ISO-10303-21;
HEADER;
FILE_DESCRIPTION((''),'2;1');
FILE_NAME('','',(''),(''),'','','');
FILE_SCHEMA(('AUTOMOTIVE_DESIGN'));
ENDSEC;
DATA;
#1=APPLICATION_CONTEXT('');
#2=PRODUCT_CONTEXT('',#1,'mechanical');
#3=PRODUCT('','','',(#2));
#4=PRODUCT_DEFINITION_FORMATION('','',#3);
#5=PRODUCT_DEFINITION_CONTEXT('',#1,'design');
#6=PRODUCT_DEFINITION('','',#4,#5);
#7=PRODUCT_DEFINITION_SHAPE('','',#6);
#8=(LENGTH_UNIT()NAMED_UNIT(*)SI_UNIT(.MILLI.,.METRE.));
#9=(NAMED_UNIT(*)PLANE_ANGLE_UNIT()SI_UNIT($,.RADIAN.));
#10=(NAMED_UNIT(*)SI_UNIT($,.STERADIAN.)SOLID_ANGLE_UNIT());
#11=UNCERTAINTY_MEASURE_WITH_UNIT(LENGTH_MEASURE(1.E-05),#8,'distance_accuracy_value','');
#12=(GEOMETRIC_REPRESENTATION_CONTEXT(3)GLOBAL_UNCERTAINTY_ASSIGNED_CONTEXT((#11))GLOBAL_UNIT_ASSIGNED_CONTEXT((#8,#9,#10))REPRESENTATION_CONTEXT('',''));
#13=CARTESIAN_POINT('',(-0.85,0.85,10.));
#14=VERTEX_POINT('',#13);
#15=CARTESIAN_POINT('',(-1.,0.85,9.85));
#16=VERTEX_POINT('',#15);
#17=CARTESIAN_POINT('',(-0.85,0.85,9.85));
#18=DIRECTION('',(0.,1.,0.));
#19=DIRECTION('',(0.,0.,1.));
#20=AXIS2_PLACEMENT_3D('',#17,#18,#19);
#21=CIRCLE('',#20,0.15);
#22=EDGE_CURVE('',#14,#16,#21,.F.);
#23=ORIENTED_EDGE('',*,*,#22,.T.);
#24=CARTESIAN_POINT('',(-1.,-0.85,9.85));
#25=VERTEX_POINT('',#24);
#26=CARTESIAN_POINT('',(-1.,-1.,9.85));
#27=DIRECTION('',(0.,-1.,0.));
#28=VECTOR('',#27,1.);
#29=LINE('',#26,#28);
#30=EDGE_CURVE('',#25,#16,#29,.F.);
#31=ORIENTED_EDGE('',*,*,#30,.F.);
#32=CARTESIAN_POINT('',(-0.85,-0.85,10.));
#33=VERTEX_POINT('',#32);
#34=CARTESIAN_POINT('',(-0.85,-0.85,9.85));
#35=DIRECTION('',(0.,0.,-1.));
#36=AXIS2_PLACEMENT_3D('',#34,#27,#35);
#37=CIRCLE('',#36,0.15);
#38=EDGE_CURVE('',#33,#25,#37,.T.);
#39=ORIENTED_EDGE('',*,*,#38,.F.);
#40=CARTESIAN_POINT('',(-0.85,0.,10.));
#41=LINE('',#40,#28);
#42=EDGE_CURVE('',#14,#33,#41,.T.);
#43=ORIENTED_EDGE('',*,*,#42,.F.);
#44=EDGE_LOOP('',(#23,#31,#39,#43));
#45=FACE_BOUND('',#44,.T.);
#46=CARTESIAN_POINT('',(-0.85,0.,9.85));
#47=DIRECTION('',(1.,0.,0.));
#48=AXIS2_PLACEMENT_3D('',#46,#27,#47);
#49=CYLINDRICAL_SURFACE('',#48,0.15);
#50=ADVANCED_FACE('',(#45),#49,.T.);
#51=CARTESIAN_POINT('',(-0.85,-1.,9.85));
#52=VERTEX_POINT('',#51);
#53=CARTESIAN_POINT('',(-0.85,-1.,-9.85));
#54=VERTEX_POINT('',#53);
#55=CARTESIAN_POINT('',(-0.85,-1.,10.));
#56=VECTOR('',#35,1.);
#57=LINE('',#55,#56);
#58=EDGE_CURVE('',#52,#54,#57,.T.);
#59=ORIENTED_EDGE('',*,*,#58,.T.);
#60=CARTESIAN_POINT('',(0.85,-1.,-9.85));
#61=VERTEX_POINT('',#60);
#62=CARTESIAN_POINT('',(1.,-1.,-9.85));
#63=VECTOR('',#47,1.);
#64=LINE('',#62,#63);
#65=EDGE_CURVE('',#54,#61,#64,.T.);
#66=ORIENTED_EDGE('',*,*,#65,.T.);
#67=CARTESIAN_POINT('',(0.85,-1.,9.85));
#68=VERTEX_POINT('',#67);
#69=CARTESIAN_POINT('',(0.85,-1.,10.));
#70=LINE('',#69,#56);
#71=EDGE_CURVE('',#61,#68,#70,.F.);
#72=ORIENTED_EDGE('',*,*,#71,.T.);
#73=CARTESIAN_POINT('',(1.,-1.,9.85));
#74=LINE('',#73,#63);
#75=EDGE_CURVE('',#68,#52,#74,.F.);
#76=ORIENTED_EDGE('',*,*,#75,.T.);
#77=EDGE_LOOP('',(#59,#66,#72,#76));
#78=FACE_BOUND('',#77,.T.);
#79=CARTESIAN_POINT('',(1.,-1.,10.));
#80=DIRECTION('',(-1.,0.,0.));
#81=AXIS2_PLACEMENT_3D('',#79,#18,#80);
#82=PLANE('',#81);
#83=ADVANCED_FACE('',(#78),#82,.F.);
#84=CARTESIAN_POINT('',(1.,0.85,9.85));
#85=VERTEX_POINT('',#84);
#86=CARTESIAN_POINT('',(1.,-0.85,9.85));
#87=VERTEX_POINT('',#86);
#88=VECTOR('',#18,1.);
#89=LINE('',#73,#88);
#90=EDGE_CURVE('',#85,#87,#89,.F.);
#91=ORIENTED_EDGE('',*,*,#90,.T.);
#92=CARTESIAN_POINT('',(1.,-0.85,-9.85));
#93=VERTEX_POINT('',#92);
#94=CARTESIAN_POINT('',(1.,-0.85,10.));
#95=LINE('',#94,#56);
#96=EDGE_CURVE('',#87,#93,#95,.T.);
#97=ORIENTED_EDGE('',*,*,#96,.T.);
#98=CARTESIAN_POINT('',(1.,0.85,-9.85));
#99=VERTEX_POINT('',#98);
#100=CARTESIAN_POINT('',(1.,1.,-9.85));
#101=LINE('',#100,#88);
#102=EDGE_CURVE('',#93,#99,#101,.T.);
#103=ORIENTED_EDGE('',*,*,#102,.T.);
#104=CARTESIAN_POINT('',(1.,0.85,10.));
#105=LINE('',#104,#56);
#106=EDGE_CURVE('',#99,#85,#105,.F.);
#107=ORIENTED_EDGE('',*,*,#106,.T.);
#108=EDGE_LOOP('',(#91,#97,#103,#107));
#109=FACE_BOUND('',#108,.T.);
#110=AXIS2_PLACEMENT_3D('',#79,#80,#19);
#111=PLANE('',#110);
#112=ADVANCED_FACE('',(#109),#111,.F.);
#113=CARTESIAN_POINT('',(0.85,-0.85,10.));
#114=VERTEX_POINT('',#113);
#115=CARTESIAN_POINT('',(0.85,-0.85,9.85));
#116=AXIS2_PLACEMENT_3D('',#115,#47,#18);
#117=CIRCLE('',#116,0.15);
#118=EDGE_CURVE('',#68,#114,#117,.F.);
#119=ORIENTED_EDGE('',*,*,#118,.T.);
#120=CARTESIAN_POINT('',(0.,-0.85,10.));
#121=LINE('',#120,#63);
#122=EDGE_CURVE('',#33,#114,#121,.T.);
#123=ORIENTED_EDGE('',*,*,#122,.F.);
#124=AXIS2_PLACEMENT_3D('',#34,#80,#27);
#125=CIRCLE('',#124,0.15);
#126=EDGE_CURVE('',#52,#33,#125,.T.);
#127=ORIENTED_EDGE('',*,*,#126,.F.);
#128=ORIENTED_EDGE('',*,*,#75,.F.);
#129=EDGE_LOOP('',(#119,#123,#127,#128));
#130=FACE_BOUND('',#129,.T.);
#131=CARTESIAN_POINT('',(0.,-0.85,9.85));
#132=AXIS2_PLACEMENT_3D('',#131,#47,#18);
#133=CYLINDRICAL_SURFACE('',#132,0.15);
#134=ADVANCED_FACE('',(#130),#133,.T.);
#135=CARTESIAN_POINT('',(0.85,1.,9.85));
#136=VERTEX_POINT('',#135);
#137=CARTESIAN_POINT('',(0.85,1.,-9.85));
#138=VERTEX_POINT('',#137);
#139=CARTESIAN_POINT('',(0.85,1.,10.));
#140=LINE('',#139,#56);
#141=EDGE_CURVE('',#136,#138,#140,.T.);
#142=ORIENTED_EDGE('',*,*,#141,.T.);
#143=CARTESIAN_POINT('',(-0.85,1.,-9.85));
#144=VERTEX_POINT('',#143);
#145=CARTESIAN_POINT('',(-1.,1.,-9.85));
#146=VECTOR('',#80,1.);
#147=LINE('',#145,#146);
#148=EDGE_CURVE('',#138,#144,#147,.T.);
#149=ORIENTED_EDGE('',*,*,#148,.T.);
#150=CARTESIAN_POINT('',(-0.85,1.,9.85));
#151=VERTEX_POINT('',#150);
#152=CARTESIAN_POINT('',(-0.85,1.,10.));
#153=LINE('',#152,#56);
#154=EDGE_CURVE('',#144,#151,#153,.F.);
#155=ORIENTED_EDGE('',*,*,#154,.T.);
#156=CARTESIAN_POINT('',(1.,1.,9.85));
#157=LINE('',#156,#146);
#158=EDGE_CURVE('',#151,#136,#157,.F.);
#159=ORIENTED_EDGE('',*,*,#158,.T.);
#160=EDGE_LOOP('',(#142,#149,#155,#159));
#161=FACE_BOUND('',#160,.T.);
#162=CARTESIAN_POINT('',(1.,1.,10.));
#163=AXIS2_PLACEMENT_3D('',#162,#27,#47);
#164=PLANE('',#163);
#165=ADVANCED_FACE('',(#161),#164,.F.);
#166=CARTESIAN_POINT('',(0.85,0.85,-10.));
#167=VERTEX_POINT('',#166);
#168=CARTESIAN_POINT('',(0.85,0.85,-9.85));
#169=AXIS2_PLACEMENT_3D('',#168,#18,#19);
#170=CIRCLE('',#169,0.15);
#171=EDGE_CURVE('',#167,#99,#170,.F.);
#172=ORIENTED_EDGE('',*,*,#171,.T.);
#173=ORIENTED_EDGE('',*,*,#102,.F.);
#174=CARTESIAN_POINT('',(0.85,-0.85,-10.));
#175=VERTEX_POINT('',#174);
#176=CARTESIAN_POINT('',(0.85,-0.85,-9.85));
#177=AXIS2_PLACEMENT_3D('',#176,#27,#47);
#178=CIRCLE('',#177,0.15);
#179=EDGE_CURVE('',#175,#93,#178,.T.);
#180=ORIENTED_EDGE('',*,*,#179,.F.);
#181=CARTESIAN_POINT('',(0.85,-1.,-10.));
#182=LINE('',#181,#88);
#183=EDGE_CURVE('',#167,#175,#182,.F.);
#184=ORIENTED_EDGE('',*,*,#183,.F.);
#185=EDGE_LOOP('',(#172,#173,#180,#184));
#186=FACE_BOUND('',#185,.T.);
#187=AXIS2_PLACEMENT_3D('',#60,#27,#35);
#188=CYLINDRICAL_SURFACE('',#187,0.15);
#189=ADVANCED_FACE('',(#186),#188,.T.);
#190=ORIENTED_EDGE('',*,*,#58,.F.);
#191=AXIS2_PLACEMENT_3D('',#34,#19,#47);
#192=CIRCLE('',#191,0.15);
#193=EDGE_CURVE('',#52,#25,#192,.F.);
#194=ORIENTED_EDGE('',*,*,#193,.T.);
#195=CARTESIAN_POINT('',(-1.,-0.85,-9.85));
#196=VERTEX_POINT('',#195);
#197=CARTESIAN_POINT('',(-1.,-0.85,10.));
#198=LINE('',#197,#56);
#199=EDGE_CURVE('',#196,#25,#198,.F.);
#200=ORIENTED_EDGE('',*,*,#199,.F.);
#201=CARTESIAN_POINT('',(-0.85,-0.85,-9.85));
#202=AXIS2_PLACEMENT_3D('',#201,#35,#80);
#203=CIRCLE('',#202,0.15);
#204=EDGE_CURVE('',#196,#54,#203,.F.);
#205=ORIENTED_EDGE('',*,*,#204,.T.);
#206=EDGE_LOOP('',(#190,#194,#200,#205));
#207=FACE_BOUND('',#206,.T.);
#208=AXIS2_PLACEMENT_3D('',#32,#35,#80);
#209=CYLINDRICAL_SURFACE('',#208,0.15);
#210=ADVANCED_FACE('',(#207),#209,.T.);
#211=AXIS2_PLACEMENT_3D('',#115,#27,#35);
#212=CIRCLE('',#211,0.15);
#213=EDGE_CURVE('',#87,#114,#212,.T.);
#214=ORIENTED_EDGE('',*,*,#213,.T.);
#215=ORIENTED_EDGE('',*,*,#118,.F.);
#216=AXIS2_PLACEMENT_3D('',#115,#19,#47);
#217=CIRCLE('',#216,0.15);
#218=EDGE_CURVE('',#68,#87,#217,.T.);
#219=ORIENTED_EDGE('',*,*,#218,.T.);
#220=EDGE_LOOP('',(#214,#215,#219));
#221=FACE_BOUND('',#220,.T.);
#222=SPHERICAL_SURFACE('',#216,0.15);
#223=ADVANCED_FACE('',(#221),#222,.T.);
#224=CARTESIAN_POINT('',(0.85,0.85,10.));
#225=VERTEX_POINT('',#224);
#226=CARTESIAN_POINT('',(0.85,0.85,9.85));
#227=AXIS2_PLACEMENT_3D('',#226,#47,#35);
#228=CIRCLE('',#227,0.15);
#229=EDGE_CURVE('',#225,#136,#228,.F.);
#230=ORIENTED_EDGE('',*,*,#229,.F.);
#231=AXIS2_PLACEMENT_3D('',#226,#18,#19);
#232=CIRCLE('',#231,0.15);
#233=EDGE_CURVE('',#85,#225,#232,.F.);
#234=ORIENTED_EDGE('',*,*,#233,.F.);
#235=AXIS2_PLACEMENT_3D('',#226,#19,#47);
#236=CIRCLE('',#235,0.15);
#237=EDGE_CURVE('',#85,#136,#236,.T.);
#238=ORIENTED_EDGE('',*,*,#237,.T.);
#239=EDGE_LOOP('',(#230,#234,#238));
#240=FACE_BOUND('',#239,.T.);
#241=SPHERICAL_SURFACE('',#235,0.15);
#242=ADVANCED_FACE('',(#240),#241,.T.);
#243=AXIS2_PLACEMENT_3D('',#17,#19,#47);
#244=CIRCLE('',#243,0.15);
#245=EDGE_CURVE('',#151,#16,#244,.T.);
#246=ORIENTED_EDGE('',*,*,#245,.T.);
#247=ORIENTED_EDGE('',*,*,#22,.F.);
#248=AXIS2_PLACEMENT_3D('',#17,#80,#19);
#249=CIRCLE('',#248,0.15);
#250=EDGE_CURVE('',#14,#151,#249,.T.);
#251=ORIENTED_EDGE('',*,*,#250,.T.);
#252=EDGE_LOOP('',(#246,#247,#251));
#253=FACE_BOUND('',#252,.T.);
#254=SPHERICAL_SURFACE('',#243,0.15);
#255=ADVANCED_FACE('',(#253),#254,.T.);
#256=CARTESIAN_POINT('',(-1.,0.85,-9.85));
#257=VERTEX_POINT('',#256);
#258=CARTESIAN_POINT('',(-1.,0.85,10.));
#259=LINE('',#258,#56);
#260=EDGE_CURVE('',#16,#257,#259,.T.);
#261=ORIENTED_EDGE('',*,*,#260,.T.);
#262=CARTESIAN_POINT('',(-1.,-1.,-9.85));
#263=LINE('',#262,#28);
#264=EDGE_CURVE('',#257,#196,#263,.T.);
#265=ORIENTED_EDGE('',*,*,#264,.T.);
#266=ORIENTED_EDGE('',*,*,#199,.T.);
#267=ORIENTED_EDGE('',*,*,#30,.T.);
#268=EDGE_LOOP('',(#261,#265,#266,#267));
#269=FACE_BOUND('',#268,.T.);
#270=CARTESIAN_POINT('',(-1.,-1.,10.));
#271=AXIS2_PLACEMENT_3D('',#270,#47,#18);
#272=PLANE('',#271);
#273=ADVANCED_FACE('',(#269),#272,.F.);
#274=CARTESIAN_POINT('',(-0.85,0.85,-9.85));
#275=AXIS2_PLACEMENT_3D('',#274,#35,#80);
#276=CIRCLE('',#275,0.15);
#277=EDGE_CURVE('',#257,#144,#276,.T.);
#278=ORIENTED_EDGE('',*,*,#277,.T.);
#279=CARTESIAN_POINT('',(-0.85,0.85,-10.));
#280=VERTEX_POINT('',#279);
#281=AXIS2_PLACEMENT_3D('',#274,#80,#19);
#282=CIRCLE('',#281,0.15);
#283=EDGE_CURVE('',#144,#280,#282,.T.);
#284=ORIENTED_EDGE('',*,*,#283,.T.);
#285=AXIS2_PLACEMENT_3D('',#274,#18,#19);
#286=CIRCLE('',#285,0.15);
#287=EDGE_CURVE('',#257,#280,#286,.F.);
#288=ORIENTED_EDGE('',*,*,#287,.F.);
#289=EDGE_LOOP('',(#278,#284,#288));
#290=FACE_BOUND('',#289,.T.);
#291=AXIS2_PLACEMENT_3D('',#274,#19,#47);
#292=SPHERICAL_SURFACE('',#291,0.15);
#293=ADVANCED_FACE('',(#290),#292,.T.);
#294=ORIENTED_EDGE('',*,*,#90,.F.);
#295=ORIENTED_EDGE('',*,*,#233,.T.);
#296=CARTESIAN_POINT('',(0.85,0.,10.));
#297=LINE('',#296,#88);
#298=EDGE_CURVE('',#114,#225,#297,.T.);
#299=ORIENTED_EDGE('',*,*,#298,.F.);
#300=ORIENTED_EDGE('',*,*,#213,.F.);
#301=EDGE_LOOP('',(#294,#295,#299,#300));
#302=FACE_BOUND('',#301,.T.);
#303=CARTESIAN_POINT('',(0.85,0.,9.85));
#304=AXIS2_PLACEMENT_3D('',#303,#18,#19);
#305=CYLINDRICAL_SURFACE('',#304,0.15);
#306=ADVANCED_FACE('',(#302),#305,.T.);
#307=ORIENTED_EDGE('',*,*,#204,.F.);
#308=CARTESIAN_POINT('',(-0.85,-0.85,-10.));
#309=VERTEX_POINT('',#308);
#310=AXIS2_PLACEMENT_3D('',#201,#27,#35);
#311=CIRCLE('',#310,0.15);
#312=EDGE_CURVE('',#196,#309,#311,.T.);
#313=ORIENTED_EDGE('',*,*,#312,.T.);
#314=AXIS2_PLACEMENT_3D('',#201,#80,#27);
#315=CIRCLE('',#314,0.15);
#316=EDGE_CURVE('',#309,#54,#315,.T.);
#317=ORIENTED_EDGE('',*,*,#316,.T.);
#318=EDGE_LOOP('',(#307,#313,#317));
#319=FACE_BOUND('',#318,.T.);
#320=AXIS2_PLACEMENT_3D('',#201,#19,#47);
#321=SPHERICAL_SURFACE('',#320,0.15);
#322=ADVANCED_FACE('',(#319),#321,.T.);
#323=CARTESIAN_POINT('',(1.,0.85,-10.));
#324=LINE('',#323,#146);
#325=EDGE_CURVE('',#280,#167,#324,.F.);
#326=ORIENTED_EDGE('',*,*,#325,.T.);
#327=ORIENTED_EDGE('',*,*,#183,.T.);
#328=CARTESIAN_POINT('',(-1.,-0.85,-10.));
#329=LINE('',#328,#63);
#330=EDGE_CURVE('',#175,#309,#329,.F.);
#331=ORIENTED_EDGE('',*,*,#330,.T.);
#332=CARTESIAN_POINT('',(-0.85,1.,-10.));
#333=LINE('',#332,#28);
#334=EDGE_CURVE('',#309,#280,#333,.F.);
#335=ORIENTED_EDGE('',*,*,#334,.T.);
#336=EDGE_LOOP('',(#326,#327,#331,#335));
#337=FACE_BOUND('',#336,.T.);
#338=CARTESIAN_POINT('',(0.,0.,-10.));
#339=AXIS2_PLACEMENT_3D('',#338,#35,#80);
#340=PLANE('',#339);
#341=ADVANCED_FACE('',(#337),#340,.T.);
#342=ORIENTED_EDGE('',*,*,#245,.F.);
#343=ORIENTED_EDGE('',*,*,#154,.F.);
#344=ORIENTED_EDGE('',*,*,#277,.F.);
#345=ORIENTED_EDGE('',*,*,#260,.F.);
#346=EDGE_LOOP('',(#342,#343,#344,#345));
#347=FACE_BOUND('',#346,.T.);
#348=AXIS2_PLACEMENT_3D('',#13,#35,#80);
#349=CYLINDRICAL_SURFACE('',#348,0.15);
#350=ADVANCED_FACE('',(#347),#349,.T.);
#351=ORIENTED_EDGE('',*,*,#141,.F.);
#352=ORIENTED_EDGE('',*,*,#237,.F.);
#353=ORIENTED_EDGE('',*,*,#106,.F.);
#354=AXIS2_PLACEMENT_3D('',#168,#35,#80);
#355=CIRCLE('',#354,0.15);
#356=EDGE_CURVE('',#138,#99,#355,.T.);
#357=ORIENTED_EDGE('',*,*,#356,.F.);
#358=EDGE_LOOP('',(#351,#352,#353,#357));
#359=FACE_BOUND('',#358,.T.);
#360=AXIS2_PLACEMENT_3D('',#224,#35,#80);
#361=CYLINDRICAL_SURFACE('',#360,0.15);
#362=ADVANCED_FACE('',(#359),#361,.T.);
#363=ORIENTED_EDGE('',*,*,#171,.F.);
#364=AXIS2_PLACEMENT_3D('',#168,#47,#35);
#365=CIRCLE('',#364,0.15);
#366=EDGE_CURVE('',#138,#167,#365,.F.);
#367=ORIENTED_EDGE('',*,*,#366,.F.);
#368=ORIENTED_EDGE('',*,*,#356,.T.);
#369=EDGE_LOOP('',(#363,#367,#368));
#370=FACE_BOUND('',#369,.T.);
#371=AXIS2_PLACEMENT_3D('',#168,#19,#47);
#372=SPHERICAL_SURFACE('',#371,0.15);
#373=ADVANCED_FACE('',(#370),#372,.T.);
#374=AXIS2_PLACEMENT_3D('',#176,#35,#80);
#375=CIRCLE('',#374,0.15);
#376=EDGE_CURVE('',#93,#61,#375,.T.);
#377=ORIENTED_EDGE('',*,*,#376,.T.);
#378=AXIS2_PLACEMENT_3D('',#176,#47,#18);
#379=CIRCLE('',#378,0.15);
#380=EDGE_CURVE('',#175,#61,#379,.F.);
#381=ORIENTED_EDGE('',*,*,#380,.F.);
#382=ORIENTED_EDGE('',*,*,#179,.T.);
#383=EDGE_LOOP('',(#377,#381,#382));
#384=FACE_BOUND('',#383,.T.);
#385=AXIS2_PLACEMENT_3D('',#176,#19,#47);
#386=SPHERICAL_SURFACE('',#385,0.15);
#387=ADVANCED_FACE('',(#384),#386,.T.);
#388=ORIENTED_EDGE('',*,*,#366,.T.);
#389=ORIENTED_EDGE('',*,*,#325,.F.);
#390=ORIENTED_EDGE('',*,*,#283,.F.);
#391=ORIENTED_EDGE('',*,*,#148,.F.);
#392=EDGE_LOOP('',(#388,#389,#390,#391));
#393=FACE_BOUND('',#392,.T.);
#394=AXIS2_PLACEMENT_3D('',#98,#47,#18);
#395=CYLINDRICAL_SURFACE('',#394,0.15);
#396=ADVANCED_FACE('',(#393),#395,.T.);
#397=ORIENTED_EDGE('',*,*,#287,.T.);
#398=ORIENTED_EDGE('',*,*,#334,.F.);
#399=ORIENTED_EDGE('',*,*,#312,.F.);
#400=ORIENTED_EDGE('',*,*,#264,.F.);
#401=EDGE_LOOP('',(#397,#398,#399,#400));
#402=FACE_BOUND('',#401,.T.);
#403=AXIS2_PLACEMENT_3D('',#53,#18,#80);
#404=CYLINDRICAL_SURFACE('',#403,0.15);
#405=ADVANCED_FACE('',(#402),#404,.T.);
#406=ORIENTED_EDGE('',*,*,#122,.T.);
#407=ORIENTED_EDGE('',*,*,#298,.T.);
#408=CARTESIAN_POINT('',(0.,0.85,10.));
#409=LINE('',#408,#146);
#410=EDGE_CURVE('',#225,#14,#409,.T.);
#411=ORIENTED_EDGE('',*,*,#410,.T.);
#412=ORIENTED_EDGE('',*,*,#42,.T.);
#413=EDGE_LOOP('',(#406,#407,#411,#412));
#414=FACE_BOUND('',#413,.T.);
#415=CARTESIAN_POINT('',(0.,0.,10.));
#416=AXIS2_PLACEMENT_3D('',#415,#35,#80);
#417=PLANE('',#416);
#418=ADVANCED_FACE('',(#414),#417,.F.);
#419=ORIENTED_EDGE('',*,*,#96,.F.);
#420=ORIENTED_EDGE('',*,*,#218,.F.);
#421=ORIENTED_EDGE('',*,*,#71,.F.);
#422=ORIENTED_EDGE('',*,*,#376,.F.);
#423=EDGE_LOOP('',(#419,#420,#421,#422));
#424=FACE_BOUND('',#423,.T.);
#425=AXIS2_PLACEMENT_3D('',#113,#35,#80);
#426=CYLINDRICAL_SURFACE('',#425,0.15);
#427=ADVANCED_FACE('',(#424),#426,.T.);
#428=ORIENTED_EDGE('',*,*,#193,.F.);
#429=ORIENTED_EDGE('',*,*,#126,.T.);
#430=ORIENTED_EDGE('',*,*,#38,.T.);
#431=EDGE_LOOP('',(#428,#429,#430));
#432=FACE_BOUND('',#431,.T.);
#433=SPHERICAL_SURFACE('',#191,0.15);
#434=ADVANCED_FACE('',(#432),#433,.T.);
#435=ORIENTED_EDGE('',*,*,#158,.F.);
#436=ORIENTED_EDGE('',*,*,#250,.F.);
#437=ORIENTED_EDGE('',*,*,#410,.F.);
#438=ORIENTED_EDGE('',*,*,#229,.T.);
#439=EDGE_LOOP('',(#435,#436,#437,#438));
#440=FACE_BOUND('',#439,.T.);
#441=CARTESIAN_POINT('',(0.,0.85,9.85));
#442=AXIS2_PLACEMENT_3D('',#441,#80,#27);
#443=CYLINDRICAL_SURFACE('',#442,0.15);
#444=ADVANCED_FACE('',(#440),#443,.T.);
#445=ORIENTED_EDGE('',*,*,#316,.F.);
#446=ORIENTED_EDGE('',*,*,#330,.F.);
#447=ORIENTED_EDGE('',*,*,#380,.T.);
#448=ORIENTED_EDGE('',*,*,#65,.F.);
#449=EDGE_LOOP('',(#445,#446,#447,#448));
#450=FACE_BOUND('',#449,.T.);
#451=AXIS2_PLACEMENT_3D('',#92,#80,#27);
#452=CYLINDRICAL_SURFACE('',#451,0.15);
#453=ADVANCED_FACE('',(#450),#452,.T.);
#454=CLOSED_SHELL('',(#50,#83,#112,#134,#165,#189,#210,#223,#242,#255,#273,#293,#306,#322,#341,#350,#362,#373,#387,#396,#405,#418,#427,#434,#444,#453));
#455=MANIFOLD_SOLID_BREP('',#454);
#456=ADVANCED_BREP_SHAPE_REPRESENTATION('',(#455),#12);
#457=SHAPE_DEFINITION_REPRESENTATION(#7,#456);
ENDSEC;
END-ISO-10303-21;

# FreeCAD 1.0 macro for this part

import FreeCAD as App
import Part
import Sketcher

doc = App.newDocument("Part")
params = doc.addObject("Spreadsheet::Sheet", "Params")
for row, (alias, value) in enumerate([
    ("sketch1_width", "2 mm"),
    ("pad1_length", "10 mm"),
    ("pad1_length2", "10 mm"),
    ("fillet_radius", "0.15 mm"),
], start=1):
    params.set(f"A{row}", alias)
    params.set(f"B{row}", "=" + value)
    params.setAlias(f"B{row}", alias)

body = doc.addObject("PartDesign::Body", "Body")

sketch1 = doc.addObject("Sketcher::SketchObject", "Sketch")
body.addObject(sketch1)
sketch1.AttachmentSupport = (doc.XY_Plane, [""])
sketch1.MapMode = "FlatFace"
sketch1.addGeometry([
    Part.LineSegment(App.Vector(-1, 1, 0), App.Vector(-1, -1, 0)),
    Part.LineSegment(App.Vector(-1, -1, 0), App.Vector(1, -1, 0)),
    Part.LineSegment(App.Vector(1, -1, 0), App.Vector(1, 1, 0)),
    Part.LineSegment(App.Vector(1, 1, 0), App.Vector(-1, 1, 0)),
], False)
sketch1.addConstraint([
    Sketcher.Constraint("Coincident", 0, 2, 1, 1),
    Sketcher.Constraint("Coincident", 1, 2, 2, 1),
    Sketcher.Constraint("Coincident", 2, 2, 3, 1),
    Sketcher.Constraint("Coincident", 3, 2, 0, 1),
    Sketcher.Constraint("Vertical", 0),
    Sketcher.Constraint("Horizontal", 1),
    Sketcher.Constraint("Vertical", 2),
    Sketcher.Constraint("Horizontal", 3),
    Sketcher.Constraint("Symmetric", 0, 2, 2, 2, -1, 1),
    Sketcher.Constraint("Equal", 3, 0),
    Sketcher.Constraint("DistanceX", 1, 1, 1, 2, 2.0),
])
sketch1.setExpression("Constraints[10]", "Params.sketch1_width")
pad1 = doc.addObject("PartDesign::Pad", "Pad")
body.addObject(pad1)
pad1.Profile = sketch1
pad1.Type = "TwoLengths"
pad1.setExpression("Length", "Params.pad1_length")
pad1.setExpression("Length2", "Params.pad1_length2")
doc.recompute()

fillet = doc.addObject("PartDesign::Fillet", "Fillet")
body.addObject(fillet)
fillet.Base = (pad1, ["Edge1"])
fillet.UseAllEdges = True
fillet.setExpression("Radius", "Params.fillet_radius")

doc.recompute()
